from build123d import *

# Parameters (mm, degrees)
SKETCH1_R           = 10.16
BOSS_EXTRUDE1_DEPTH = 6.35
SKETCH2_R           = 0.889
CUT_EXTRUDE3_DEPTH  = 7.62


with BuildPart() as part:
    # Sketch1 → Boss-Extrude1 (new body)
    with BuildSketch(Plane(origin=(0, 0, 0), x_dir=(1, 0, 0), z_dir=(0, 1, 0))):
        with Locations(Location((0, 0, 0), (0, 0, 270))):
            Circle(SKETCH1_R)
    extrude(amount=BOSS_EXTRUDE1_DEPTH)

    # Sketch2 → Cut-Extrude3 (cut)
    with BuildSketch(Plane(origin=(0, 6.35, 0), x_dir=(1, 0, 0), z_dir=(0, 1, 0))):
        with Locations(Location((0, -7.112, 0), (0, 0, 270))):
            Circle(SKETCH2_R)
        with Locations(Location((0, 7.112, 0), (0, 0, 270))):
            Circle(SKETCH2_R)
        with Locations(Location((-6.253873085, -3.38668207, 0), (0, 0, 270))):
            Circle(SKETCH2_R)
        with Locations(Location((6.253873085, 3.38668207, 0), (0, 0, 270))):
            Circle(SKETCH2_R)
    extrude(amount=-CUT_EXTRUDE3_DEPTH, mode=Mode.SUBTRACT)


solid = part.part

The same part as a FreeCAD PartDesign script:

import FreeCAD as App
import Part
import Sketcher

V = App.Vector
Q = App.Units.Quantity

doc = App.newDocument("Part")
params = doc.addObject("Spreadsheet::Sheet", "Params")
for row, (alias, value) in enumerate([
    ("sketch1_diameter", "0.8 in"),
    ("pad1_length", "0.25 in"),
    ("sketch2_diameter", "0.07 in"),
    ("pocket1_length", "0.3 in"),
], start=1):
    params.set(f"A{row}", alias)
    params.set(f"B{row}", "=" + value)
    params.setAlias(f"B{row}", alias)

body = doc.addObject("PartDesign::Body", "Body")

sketch1 = body.newObject("Sketcher::SketchObject", "Sketch")
sketch1.AttachmentSupport = (doc.getObject("XZ_Plane"), [""])
sketch1.MapMode = "FlatFace"
sketch1.addGeometry(Part.Circle(V(0, 0, 0), V(0, 0, 1), 10), False)
sketch1.addConstraint(Sketcher.Constraint("Coincident", 0, 3, -1, 1))
sketch1.addConstraint(Sketcher.Constraint("Diameter", 0, Q("0.8 in")))
sketch1.setExpression("Constraints[1]", "Params.sketch1_diameter")
pad1 = body.newObject("PartDesign::Pad", "Pad")
pad1.Profile = sketch1
pad1.setExpression("Length", "Params.pad1_length")
pad1.Reversed = True

sketch2 = body.newObject("Sketcher::SketchObject", "Sketch001")
sketch2.AttachmentSupport = (doc.getObject("XZ_Plane"), [""])
sketch2.MapMode = "FlatFace"
sketch2.AttachmentOffset = App.Placement(V(0, 0, -0.25 * 25.4), App.Rotation())
sketch2.addGeometry(Part.Circle(V(0, 7.1, 0), V(0, 0, 1), 0.9), False)
sketch2.addGeometry(Part.Circle(V(0, -7.1, 0), V(0, 0, 1), 0.9), False)
sketch2.addGeometry(Part.Circle(V(-6.3, 3.4, 0), V(0, 0, 1), 0.9), False)
sketch2.addGeometry(Part.Circle(V(6.3, -3.4, 0), V(0, 0, 1), 0.9), False)
sketch2.addConstraint(Sketcher.Constraint("Equal", 0, 1))
sketch2.addConstraint(Sketcher.Constraint("Equal", 1, 2))
sketch2.addConstraint(Sketcher.Constraint("Equal", 2, 3))
sketch2.addConstraint(Sketcher.Constraint("Symmetric", 0, 3, 1, 3, -1, 1))
sketch2.addConstraint(Sketcher.Constraint("Symmetric", 2, 3, 3, 3, -1, 1))
sketch2.addConstraint(Sketcher.Constraint("PointOnObject", 0, 3, -2))
sketch2.addConstraint(Sketcher.Constraint("Diameter", 0, Q("0.07 in")))
sketch2.addConstraint(Sketcher.Constraint("DistanceY", -1, 1, 0, 3, Q("0.28 in")))
sketch2.addConstraint(Sketcher.Constraint("DistanceX", 2, 3, -1, 1, 6.253873))
sketch2.addConstraint(Sketcher.Constraint("DistanceY", -1, 1, 2, 3, 3.386682))
sketch2.setExpression("Constraints[6]", "Params.sketch2_diameter")
pocket1 = body.newObject("PartDesign::Pocket", "Pocket")
pocket1.Profile = sketch2
pocket1.setExpression("Length", "Params.pocket1_length")
pocket1.Reversed = True

doc.recompute()
